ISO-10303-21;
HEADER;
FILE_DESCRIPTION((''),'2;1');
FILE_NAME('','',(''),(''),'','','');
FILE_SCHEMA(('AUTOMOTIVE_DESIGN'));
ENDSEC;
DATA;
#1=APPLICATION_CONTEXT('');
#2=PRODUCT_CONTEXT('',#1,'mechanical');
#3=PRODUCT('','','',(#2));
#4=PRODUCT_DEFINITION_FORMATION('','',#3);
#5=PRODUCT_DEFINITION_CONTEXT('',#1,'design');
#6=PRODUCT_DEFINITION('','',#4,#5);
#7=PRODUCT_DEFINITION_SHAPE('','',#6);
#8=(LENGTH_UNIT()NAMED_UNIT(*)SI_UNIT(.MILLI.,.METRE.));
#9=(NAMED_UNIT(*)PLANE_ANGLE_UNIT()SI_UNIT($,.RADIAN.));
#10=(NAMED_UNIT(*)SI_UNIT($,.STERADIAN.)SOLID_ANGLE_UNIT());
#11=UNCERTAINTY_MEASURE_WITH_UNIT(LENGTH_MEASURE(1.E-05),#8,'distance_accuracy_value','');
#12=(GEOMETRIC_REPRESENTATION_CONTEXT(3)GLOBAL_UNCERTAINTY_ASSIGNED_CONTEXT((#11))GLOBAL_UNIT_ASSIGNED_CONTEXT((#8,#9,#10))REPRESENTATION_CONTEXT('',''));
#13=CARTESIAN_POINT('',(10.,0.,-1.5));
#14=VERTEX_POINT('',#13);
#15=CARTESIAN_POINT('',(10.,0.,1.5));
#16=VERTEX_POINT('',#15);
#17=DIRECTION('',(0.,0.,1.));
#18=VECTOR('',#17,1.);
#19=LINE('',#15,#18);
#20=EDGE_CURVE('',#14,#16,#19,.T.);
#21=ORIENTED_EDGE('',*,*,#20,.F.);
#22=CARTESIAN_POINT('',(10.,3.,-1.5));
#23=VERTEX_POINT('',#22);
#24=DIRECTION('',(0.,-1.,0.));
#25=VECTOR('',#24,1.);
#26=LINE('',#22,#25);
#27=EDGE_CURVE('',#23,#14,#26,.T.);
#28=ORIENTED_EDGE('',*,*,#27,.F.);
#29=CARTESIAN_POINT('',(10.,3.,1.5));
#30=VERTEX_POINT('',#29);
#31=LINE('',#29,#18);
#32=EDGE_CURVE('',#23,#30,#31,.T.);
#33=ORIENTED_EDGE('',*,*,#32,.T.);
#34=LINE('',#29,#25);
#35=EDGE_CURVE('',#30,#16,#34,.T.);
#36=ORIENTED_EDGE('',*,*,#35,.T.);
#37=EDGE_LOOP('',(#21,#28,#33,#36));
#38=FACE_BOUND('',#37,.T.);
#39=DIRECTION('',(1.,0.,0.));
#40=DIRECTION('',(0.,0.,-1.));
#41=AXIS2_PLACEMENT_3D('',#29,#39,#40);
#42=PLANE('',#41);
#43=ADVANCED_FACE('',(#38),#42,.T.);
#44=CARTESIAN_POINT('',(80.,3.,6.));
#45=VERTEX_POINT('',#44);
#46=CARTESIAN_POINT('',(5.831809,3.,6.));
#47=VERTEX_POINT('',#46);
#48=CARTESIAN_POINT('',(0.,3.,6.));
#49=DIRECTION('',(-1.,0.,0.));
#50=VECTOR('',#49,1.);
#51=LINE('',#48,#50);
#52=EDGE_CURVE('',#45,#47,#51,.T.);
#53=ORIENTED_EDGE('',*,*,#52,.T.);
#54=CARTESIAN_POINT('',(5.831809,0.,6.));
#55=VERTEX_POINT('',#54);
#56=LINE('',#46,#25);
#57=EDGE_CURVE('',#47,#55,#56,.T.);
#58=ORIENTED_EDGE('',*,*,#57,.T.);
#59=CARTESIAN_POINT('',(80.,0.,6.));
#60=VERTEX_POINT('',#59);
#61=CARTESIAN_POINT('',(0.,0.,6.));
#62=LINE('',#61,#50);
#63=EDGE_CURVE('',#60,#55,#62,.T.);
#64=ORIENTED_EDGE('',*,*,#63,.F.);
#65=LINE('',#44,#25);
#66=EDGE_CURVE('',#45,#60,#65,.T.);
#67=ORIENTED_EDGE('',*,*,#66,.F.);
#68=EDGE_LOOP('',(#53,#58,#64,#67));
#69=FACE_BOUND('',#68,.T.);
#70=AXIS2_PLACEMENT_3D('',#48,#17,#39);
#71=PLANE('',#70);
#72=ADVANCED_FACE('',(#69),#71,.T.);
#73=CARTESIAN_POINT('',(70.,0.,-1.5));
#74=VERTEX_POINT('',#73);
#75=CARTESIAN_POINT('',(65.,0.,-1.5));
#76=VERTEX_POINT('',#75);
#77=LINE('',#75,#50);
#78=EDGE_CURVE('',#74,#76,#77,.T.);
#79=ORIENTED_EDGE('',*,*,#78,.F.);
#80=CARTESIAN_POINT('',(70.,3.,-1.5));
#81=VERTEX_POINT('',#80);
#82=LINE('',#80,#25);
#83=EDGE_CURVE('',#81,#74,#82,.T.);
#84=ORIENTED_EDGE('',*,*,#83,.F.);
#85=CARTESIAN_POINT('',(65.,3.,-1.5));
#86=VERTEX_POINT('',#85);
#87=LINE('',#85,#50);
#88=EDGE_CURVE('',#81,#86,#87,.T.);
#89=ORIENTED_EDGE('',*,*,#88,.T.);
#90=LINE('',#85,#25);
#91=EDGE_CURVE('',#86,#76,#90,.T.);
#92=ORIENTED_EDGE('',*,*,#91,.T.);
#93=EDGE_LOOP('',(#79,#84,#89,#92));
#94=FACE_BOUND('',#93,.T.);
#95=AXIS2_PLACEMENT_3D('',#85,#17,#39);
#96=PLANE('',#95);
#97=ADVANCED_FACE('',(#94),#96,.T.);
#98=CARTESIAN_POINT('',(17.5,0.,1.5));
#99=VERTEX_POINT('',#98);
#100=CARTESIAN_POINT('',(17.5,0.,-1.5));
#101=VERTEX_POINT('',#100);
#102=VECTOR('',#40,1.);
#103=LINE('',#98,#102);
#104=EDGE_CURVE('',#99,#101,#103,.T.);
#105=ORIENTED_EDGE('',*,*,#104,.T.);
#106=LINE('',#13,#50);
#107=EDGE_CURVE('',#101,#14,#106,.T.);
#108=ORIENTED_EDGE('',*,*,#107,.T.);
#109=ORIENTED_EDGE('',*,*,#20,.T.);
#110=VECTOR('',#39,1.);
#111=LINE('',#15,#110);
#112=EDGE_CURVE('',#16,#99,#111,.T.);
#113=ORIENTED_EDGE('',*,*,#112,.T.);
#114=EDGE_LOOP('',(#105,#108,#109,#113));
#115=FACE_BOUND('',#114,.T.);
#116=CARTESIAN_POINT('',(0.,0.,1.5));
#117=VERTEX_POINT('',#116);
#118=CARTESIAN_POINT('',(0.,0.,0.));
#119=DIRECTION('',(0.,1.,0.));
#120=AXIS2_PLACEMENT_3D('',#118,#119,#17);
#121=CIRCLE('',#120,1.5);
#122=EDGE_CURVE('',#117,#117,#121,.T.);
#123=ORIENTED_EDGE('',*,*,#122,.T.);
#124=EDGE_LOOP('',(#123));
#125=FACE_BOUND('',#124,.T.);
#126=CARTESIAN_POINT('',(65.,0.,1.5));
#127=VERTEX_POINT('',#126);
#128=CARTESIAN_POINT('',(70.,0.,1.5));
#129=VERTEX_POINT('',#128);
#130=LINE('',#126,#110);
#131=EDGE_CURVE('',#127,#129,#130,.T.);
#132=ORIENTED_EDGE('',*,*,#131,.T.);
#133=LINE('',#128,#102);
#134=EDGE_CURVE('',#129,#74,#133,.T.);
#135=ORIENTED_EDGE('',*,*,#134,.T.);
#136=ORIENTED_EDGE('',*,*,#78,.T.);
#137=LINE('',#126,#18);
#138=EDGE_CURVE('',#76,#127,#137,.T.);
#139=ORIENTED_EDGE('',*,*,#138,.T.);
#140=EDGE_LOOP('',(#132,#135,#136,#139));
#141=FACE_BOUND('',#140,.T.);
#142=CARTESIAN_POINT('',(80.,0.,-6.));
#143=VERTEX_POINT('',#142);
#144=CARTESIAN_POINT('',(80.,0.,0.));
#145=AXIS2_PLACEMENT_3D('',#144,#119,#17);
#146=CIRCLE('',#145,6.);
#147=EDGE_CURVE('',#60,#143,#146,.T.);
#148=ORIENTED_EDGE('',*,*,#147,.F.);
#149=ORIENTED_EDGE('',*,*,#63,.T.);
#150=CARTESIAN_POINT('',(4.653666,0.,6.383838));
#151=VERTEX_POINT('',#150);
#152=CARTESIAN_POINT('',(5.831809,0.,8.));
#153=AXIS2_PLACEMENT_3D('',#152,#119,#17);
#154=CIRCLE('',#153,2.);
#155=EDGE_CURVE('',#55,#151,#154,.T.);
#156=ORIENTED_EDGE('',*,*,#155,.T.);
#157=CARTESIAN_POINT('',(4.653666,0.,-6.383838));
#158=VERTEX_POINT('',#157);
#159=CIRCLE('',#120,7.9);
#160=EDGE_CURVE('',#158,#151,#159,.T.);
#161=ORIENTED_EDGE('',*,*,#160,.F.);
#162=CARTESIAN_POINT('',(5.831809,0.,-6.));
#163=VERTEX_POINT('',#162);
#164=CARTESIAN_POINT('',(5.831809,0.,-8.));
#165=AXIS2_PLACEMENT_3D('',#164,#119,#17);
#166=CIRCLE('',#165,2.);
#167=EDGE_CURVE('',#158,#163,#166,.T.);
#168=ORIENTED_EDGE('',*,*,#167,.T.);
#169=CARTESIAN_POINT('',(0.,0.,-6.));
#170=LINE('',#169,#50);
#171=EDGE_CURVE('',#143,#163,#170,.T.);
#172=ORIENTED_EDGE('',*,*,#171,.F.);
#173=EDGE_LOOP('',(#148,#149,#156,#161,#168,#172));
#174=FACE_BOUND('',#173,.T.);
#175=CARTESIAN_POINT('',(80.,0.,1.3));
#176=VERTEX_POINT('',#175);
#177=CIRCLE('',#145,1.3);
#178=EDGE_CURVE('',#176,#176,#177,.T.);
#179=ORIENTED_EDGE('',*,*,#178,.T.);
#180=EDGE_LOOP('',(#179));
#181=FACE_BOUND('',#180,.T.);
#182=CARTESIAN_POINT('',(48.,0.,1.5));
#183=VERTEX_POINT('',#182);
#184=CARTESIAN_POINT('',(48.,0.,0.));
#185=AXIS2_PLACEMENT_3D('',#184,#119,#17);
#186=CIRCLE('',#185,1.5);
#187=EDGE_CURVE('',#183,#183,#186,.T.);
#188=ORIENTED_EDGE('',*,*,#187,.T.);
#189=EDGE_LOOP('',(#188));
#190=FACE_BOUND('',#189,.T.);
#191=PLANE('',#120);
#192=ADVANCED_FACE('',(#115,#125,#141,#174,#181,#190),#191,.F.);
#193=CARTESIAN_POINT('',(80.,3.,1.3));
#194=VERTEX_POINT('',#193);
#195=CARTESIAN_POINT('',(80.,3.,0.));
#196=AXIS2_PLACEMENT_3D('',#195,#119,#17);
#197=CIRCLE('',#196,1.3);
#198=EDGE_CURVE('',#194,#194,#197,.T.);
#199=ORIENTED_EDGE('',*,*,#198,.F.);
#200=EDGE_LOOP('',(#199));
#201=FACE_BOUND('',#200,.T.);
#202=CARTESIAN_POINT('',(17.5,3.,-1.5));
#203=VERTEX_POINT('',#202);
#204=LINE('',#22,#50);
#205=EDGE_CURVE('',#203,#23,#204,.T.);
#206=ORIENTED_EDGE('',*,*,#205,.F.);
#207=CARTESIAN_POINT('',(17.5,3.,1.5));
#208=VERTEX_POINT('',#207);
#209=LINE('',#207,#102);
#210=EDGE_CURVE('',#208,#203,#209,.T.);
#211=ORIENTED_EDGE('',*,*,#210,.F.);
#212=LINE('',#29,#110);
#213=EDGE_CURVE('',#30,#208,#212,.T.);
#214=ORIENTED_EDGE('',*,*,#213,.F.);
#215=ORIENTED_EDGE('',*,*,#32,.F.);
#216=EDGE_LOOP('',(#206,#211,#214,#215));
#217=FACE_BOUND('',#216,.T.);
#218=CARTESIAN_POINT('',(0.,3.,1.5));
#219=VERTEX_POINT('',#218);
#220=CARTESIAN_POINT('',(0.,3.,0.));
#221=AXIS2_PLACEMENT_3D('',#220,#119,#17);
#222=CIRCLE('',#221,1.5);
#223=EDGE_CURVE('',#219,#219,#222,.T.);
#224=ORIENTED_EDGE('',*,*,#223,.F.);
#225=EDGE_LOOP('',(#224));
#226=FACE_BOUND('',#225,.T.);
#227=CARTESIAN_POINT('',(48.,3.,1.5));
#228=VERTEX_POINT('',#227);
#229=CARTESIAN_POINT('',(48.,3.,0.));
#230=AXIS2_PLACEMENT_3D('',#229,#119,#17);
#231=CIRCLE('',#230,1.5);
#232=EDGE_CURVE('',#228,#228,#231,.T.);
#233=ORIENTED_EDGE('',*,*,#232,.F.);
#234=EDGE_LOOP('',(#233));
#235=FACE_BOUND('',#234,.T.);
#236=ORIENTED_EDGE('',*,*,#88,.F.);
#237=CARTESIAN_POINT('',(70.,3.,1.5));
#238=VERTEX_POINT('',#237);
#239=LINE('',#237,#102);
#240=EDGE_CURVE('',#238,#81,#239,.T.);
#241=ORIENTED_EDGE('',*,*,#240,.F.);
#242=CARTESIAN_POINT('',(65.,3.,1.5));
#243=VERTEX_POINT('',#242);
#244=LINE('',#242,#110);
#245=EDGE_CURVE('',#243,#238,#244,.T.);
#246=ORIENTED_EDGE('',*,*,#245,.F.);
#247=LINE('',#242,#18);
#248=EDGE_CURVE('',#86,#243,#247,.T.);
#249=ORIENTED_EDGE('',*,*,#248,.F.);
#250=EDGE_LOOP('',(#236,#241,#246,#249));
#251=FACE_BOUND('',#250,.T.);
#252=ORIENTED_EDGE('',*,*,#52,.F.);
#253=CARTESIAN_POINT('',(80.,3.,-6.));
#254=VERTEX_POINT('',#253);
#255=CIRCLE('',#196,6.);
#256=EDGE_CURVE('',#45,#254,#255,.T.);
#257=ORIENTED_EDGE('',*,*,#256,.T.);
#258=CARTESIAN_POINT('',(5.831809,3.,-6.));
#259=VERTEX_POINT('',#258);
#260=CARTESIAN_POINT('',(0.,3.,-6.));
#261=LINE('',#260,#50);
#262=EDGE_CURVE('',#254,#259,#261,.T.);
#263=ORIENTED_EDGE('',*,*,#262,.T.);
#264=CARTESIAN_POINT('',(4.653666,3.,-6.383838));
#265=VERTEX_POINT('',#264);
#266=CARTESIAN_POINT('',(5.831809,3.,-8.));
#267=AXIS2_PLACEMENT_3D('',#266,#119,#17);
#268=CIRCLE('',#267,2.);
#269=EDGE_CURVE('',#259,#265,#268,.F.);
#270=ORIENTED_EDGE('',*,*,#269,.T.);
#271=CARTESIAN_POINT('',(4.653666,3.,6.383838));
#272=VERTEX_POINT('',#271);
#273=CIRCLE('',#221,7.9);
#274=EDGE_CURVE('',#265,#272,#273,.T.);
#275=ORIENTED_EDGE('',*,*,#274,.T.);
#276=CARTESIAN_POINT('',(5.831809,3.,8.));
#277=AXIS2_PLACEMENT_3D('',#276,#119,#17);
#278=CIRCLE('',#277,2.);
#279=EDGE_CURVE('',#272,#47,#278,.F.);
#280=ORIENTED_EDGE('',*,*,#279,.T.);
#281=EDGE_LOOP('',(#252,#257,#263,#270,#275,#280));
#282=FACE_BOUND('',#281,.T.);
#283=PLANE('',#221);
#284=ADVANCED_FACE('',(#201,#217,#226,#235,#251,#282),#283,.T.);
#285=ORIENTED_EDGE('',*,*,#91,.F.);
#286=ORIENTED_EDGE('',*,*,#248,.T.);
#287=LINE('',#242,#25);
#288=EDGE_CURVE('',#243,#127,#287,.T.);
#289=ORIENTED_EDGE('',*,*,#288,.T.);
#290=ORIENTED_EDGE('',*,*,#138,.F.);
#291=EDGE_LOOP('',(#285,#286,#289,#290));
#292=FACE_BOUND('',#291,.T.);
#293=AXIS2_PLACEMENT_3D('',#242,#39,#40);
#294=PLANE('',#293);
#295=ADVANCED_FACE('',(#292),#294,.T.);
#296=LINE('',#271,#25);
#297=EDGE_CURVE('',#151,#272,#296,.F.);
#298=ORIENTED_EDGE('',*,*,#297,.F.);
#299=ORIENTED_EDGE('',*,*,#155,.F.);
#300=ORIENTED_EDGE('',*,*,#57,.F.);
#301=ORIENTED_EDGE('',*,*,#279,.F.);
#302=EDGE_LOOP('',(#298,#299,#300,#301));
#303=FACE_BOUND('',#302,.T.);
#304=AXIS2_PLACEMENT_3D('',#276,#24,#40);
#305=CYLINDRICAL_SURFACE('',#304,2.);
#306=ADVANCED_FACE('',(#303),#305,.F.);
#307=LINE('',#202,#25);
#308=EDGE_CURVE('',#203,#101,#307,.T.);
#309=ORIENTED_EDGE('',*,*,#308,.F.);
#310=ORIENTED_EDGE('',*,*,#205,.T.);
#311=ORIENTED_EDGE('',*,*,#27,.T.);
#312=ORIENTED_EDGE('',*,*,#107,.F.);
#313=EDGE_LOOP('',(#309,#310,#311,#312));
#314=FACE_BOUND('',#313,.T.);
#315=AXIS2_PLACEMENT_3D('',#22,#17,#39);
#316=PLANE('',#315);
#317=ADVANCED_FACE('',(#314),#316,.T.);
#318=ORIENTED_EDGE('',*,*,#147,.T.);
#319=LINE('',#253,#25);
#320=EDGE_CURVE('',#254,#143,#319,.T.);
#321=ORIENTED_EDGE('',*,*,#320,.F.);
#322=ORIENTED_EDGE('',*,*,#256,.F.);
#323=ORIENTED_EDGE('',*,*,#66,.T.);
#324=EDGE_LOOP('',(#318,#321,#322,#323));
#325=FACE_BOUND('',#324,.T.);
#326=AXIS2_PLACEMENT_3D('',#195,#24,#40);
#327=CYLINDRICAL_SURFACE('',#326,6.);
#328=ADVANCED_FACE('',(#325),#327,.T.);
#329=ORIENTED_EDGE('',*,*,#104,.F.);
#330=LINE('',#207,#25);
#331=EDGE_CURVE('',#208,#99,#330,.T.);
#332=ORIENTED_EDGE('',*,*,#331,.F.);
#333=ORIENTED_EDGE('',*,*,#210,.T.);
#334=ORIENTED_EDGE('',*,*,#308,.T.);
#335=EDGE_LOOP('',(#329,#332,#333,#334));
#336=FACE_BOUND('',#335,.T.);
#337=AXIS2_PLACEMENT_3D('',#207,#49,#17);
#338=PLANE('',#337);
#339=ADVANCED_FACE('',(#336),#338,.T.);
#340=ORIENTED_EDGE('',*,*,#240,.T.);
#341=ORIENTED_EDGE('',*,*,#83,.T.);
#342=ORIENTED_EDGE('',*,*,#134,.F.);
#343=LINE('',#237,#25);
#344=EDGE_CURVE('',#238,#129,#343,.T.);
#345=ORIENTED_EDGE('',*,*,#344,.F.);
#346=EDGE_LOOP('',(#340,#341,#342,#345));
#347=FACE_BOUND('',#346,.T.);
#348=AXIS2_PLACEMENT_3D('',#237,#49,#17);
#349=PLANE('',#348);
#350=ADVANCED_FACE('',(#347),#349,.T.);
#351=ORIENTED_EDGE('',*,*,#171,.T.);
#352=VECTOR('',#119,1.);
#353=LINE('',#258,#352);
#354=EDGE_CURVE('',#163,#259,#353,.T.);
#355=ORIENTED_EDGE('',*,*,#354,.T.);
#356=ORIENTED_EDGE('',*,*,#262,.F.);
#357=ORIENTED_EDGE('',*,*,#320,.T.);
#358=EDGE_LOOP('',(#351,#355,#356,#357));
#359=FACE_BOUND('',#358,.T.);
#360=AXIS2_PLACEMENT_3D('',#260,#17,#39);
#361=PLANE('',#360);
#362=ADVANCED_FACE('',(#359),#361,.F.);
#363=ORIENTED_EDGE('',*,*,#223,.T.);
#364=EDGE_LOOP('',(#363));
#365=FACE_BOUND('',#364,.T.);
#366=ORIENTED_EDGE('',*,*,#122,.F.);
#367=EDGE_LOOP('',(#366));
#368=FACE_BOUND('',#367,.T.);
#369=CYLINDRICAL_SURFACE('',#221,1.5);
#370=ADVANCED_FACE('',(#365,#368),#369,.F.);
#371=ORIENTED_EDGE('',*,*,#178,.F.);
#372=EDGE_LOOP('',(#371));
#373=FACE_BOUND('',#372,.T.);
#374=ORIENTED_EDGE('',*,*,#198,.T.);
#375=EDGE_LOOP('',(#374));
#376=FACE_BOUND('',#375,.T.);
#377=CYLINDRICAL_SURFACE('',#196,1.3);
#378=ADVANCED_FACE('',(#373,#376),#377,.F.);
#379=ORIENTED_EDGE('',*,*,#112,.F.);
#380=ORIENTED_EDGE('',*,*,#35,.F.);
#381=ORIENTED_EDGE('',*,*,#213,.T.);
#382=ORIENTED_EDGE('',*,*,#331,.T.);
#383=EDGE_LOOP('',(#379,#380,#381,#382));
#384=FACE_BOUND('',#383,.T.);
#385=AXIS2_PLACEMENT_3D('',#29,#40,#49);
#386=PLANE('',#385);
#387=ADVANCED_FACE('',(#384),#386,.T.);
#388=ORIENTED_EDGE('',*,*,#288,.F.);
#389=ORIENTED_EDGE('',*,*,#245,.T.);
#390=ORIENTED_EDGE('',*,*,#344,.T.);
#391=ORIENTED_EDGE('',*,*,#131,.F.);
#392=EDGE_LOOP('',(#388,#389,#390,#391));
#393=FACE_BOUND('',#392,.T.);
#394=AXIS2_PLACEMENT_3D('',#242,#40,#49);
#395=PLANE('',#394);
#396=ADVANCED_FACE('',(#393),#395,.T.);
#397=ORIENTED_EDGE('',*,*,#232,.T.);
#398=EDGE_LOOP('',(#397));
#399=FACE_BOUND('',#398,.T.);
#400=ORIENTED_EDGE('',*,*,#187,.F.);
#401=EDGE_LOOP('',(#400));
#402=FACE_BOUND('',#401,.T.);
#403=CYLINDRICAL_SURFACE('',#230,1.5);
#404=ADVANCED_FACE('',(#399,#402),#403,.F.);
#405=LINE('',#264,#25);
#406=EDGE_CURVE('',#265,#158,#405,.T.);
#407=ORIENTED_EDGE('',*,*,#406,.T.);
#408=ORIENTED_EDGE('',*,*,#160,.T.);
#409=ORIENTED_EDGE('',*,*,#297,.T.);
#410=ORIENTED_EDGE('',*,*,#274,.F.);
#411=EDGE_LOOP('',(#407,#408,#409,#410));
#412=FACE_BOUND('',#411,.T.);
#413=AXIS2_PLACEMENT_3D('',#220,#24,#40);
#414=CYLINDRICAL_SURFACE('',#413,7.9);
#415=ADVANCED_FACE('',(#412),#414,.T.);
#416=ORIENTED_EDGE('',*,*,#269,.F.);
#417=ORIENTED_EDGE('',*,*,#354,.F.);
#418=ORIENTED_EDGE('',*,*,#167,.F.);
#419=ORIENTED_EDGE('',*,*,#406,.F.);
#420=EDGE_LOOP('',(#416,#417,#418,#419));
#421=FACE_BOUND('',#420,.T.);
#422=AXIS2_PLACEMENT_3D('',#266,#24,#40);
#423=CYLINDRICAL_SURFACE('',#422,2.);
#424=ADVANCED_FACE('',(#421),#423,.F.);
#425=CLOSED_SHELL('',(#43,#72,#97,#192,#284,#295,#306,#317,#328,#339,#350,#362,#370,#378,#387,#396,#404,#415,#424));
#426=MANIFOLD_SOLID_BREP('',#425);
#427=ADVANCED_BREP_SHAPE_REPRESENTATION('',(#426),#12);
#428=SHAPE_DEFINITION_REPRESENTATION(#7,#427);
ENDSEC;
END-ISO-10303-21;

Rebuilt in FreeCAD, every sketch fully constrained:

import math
import FreeCAD as App
import Part
import Sketcher
from FreeCAD import Vector
Q = App.Units.Quantity


def edges_at(feature, points):
    """Names of the edges that pass closest to the given points."""
    edges = feature.Shape.Edges
    near = lambda p: min(range(len(edges)), key=lambda i: edges[i].distToShape(Part.Vertex(*p))[0])
    return sorted({f"Edge{near(p) + 1}" for p in points})


def add_polygon(sketch, points):
    """Adds a closed chain of lines whose ends are joined by coincident constraints."""
    first, n = sketch.GeometryCount, len(points)
    for a, b in zip(points, points[1:] + points[:1]):
        sketch.addGeometry(Part.LineSegment(App.Vector(*a, 0), App.Vector(*b, 0)), False)
    for i in range(n):
        sketch.addConstraint(Sketcher.Constraint("Coincident", first + i, 2, first + (i + 1) % n, 1))

doc = App.newDocument("Part")
body = doc.addObject("PartDesign::Body", "Body")

# Sketch on XZ plane
sketch1 = body.newObject("Sketcher::SketchObject", "Sketch")
sketch1.AttachmentSupport = (doc.getObject("XZ_Plane"), [""])
sketch1.MapMode = "FlatFace"
sketch1.addGeometry(Part.LineSegment(Vector(80, -6, 0), Vector(5, -6, 0)), False)
sketch1.addGeometry(Part.ArcOfCircle(Part.Circle(Vector(0, 0, 0), Vector(0, 0, 1), 8), math.radians(49), math.radians(311)), False)
sketch1.addGeometry(Part.LineSegment(Vector(5, 6, 0), Vector(80, 6, 0)), False)
sketch1.addGeometry(Part.ArcOfCircle(Part.Circle(Vector(80, 0, 0), Vector(0, 0, 1), 6), math.radians(-90), math.radians(90)), False)
sketch1.addConstraint(Sketcher.Constraint("Coincident", 0, 2, 1, 2))
sketch1.addConstraint(Sketcher.Constraint("Coincident", 1, 1, 2, 1))
sketch1.addConstraint(Sketcher.Constraint("Tangent", 2, 2, 3, 2))
sketch1.addConstraint(Sketcher.Constraint("Tangent", 3, 1, 0, 1))
sketch1.addConstraint(Sketcher.Constraint("Horizontal", 0))
sketch1.addConstraint(Sketcher.Constraint("Horizontal", 2))
sketch1.addConstraint(Sketcher.Constraint("Coincident", 1, 3, -1, 1))
sketch1.addConstraint(Sketcher.Constraint("PointOnObject", 3, 3, -1))
sketch1.addConstraint(Sketcher.Constraint("Radius", 3, Q("6 mm")))
sketch1.addConstraint(Sketcher.Constraint("Radius", 1, Q("7.9 mm")))
sketch1.addConstraint(Sketcher.Constraint("DistanceX", -1, 1, 3, 3, Q("80 mm")))
pad1 = body.newObject("PartDesign::Pad", "Pad")
pad1.Profile = sketch1
pad1.Length = 3
pad1.Reversed = True

# Sketch on XZ plane
sketch2 = body.newObject("Sketcher::SketchObject", "Sketch001")
sketch2.AttachmentSupport = (doc.getObject("XZ_Plane"), [""])
sketch2.MapMode = "FlatFace"
add_polygon(sketch2, [(65, -1.5), (65, 1.5), (70, 1.5), (70, -1.5)])  # lines 0-3
add_polygon(sketch2, [(10, -1.5), (10, 1.5), (17.5, 1.5), (17.5, -1.5)])  # lines 4-7
sketch2.addConstraint(Sketcher.Constraint("Vertical", 0))
sketch2.addConstraint(Sketcher.Constraint("Horizontal", 1))
sketch2.addConstraint(Sketcher.Constraint("Vertical", 2))
sketch2.addConstraint(Sketcher.Constraint("Horizontal", 3))
sketch2.addConstraint(Sketcher.Constraint("Vertical", 4))
sketch2.addConstraint(Sketcher.Constraint("Horizontal", 5))
sketch2.addConstraint(Sketcher.Constraint("Vertical", 6))
sketch2.addConstraint(Sketcher.Constraint("Horizontal", 7))
sketch2.addConstraint(Sketcher.Constraint("Horizontal", 1, 2, 4, 2))
sketch2.addConstraint(Sketcher.Constraint("Horizontal", 3, 2, 6, 2))
sketch2.addConstraint(Sketcher.Constraint("DistanceX", 1, 1, 1, 2, Q("5 mm")))
sketch2.addConstraint(Sketcher.Constraint("DistanceY", 0, 1, 0, 2, Q("3 mm")))
sketch2.addConstraint(Sketcher.Constraint("DistanceX", 5, 1, 5, 2, Q("7.5 mm")))
sketch2.addConstraint(Sketcher.Constraint("DistanceX", -1, 1, 0, 2, Q("65 mm")))
sketch2.addConstraint(Sketcher.Constraint("DistanceX", -1, 1, 4, 2, Q("10 mm")))
sketch2.addConstraint(Sketcher.Constraint("DistanceY", -1, 1, 0, 2, Q("1.5 mm")))
pocket1 = body.newObject("PartDesign::Pocket", "Pocket")
pocket1.Profile = sketch2
pocket1.Type = "ThroughAll"

# Sketch on XZ plane
sketch3 = body.newObject("Sketcher::SketchObject", "Sketch002")
sketch3.AttachmentSupport = (doc.getObject("XZ_Plane"), [""])
sketch3.MapMode = "FlatFace"
sketch3.AttachmentOffset = App.Placement(Vector(0, 0, -3), App.Rotation())
sketch3.addGeometry(Part.Circle(Vector(0, 0, 0), Vector(0, 0, 1), 1.5), False)
sketch3.addGeometry(Part.Circle(Vector(48, 0, 0), Vector(0, 0, 1), 1.5), False)
sketch3.addConstraint(Sketcher.Constraint("Coincident", 0, 3, -1, 1))
sketch3.addConstraint(Sketcher.Constraint("Equal", 0, 1))
sketch3.addConstraint(Sketcher.Constraint("PointOnObject", 1, 3, -1))
sketch3.addConstraint(Sketcher.Constraint("Diameter", 0, Q("3 mm")))
sketch3.addConstraint(Sketcher.Constraint("DistanceX", -1, 1, 1, 3, Q("48 mm")))
doc.recompute()
hole = body.newObject("PartDesign::Hole", "Hole")
hole.Profile = sketch3
hole.ThreadType = "None"
hole.Diameter = 3
hole.DepthType = "ThroughAll"
hole.Reversed = True

# Sketch on XZ plane
sketch4 = body.newObject("Sketcher::SketchObject", "Sketch003")
sketch4.AttachmentSupport = (doc.getObject("XZ_Plane"), [""])
sketch4.MapMode = "FlatFace"
sketch4.AttachmentOffset = App.Placement(Vector(0, 0, -3), App.Rotation())
sketch4.addGeometry(Part.Circle(Vector(80, 0, 0), Vector(0, 0, 1), 1.3), False)
sketch4.addConstraint(Sketcher.Constraint("PointOnObject", 0, 3, -1))
sketch4.addConstraint(Sketcher.Constraint("Diameter", 0, Q("2.6 mm")))
sketch4.addConstraint(Sketcher.Constraint("DistanceX", -1, 1, 0, 3, Q("80 mm")))
doc.recompute()
hole2 = body.newObject("PartDesign::Hole", "Hole001")
hole2.Profile = sketch4
hole2.ThreadType = "None"
hole2.Diameter = 2.6
hole2.DepthType = "ThroughAll"
hole2.Reversed = True
doc.recompute()

fillet = body.newObject("PartDesign::Fillet", "Fillet")
fillet.Base = (hole2, edges_at(hole2, [(5.139, 1.5, 6), (5.139, 1.5, -6)]))
fillet.Radius = 2

doc.recompute()
